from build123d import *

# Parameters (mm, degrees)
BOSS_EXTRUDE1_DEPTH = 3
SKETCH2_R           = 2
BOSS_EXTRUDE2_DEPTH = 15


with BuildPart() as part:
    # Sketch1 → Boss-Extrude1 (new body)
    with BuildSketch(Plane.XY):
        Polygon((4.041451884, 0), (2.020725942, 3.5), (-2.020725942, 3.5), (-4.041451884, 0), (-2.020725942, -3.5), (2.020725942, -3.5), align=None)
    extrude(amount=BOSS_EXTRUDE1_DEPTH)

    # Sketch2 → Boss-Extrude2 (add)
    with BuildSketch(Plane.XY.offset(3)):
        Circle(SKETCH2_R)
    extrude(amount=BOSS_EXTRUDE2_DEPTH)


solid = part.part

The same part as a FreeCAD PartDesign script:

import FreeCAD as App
import Part
import Sketcher

V = App.Vector
Q = App.Units.Quantity


def add_polygon(sketch, points):
    """Adds a closed chain of lines whose ends are joined by coincident constraints."""
    first, n = sketch.GeometryCount, len(points)
    for a, b in zip(points, points[1:] + points[:1]):
        sketch.addGeometry(Part.LineSegment(App.Vector(*a, 0), App.Vector(*b, 0)), False)
    for i in range(n):
        sketch.addConstraint(Sketcher.Constraint("Coincident", first + i, 2, first + (i + 1) % n, 1))

doc = App.newDocument("Part")
body = doc.addObject("PartDesign::Body", "Body")

sketch1 = doc.addObject("Sketcher::SketchObject", "Sketch")
body.addObject(sketch1)
sketch1.AttachmentSupport = (doc.XY_Plane, [""])
sketch1.MapMode = "FlatFace"
add_polygon(sketch1, [(4.041452, 0), (2.020726, 3.5), (-2.020726, 3.5), (-4.041452, 0), (-2.020726, -3.5), (2.020726, -3.5)])
sketch1.addConstraint([
    Sketcher.Constraint("Horizontal", 1),
    Sketcher.Constraint("Horizontal", 4),
    Sketcher.Constraint("Symmetric", 0, 2, 3, 2, -1, 1),
    Sketcher.Constraint("Symmetric", 2, 2, 5, 2, -1, 1),
    Sketcher.Constraint("PointOnObject", 2, 2, -1),
    Sketcher.Constraint("Parallel", 2, 5),
    Sketcher.Constraint("Vertical", 1, 2, 3, 2),
    Sketcher.Constraint("Angle", 0, Q("120 deg")),
    Sketcher.Constraint("DistanceY", 3, 2, 1, 2, Q("7 mm")),
    Sketcher.Constraint("DistanceX", 1, 2, 1, 1, Q("4.041452 mm")),
])
pad1 = doc.addObject("PartDesign::Pad", "Pad")
body.addObject(pad1)
pad1.Profile = sketch1
pad1.Length = 3

sketch2 = doc.addObject("Sketcher::SketchObject", "Sketch001")
body.addObject(sketch2)
sketch2.AttachmentSupport = (doc.XY_Plane, [""])
sketch2.MapMode = "FlatFace"
sketch2.AttachmentOffset = App.Placement(V(0, 0, 3), App.Rotation())
sketch2.addGeometry(Part.Circle(V(0, 0, 0), V(0, 0, 1), 2), False)
sketch2.addConstraint([
    Sketcher.Constraint("Coincident", 0, 3, -1, 1),
    Sketcher.Constraint("Diameter", 0, Q("4 mm")),
])
pad2 = doc.addObject("PartDesign::Pad", "Pad001")
body.addObject(pad2)
pad2.Profile = sketch2
pad2.Length = 15

doc.recompute()
